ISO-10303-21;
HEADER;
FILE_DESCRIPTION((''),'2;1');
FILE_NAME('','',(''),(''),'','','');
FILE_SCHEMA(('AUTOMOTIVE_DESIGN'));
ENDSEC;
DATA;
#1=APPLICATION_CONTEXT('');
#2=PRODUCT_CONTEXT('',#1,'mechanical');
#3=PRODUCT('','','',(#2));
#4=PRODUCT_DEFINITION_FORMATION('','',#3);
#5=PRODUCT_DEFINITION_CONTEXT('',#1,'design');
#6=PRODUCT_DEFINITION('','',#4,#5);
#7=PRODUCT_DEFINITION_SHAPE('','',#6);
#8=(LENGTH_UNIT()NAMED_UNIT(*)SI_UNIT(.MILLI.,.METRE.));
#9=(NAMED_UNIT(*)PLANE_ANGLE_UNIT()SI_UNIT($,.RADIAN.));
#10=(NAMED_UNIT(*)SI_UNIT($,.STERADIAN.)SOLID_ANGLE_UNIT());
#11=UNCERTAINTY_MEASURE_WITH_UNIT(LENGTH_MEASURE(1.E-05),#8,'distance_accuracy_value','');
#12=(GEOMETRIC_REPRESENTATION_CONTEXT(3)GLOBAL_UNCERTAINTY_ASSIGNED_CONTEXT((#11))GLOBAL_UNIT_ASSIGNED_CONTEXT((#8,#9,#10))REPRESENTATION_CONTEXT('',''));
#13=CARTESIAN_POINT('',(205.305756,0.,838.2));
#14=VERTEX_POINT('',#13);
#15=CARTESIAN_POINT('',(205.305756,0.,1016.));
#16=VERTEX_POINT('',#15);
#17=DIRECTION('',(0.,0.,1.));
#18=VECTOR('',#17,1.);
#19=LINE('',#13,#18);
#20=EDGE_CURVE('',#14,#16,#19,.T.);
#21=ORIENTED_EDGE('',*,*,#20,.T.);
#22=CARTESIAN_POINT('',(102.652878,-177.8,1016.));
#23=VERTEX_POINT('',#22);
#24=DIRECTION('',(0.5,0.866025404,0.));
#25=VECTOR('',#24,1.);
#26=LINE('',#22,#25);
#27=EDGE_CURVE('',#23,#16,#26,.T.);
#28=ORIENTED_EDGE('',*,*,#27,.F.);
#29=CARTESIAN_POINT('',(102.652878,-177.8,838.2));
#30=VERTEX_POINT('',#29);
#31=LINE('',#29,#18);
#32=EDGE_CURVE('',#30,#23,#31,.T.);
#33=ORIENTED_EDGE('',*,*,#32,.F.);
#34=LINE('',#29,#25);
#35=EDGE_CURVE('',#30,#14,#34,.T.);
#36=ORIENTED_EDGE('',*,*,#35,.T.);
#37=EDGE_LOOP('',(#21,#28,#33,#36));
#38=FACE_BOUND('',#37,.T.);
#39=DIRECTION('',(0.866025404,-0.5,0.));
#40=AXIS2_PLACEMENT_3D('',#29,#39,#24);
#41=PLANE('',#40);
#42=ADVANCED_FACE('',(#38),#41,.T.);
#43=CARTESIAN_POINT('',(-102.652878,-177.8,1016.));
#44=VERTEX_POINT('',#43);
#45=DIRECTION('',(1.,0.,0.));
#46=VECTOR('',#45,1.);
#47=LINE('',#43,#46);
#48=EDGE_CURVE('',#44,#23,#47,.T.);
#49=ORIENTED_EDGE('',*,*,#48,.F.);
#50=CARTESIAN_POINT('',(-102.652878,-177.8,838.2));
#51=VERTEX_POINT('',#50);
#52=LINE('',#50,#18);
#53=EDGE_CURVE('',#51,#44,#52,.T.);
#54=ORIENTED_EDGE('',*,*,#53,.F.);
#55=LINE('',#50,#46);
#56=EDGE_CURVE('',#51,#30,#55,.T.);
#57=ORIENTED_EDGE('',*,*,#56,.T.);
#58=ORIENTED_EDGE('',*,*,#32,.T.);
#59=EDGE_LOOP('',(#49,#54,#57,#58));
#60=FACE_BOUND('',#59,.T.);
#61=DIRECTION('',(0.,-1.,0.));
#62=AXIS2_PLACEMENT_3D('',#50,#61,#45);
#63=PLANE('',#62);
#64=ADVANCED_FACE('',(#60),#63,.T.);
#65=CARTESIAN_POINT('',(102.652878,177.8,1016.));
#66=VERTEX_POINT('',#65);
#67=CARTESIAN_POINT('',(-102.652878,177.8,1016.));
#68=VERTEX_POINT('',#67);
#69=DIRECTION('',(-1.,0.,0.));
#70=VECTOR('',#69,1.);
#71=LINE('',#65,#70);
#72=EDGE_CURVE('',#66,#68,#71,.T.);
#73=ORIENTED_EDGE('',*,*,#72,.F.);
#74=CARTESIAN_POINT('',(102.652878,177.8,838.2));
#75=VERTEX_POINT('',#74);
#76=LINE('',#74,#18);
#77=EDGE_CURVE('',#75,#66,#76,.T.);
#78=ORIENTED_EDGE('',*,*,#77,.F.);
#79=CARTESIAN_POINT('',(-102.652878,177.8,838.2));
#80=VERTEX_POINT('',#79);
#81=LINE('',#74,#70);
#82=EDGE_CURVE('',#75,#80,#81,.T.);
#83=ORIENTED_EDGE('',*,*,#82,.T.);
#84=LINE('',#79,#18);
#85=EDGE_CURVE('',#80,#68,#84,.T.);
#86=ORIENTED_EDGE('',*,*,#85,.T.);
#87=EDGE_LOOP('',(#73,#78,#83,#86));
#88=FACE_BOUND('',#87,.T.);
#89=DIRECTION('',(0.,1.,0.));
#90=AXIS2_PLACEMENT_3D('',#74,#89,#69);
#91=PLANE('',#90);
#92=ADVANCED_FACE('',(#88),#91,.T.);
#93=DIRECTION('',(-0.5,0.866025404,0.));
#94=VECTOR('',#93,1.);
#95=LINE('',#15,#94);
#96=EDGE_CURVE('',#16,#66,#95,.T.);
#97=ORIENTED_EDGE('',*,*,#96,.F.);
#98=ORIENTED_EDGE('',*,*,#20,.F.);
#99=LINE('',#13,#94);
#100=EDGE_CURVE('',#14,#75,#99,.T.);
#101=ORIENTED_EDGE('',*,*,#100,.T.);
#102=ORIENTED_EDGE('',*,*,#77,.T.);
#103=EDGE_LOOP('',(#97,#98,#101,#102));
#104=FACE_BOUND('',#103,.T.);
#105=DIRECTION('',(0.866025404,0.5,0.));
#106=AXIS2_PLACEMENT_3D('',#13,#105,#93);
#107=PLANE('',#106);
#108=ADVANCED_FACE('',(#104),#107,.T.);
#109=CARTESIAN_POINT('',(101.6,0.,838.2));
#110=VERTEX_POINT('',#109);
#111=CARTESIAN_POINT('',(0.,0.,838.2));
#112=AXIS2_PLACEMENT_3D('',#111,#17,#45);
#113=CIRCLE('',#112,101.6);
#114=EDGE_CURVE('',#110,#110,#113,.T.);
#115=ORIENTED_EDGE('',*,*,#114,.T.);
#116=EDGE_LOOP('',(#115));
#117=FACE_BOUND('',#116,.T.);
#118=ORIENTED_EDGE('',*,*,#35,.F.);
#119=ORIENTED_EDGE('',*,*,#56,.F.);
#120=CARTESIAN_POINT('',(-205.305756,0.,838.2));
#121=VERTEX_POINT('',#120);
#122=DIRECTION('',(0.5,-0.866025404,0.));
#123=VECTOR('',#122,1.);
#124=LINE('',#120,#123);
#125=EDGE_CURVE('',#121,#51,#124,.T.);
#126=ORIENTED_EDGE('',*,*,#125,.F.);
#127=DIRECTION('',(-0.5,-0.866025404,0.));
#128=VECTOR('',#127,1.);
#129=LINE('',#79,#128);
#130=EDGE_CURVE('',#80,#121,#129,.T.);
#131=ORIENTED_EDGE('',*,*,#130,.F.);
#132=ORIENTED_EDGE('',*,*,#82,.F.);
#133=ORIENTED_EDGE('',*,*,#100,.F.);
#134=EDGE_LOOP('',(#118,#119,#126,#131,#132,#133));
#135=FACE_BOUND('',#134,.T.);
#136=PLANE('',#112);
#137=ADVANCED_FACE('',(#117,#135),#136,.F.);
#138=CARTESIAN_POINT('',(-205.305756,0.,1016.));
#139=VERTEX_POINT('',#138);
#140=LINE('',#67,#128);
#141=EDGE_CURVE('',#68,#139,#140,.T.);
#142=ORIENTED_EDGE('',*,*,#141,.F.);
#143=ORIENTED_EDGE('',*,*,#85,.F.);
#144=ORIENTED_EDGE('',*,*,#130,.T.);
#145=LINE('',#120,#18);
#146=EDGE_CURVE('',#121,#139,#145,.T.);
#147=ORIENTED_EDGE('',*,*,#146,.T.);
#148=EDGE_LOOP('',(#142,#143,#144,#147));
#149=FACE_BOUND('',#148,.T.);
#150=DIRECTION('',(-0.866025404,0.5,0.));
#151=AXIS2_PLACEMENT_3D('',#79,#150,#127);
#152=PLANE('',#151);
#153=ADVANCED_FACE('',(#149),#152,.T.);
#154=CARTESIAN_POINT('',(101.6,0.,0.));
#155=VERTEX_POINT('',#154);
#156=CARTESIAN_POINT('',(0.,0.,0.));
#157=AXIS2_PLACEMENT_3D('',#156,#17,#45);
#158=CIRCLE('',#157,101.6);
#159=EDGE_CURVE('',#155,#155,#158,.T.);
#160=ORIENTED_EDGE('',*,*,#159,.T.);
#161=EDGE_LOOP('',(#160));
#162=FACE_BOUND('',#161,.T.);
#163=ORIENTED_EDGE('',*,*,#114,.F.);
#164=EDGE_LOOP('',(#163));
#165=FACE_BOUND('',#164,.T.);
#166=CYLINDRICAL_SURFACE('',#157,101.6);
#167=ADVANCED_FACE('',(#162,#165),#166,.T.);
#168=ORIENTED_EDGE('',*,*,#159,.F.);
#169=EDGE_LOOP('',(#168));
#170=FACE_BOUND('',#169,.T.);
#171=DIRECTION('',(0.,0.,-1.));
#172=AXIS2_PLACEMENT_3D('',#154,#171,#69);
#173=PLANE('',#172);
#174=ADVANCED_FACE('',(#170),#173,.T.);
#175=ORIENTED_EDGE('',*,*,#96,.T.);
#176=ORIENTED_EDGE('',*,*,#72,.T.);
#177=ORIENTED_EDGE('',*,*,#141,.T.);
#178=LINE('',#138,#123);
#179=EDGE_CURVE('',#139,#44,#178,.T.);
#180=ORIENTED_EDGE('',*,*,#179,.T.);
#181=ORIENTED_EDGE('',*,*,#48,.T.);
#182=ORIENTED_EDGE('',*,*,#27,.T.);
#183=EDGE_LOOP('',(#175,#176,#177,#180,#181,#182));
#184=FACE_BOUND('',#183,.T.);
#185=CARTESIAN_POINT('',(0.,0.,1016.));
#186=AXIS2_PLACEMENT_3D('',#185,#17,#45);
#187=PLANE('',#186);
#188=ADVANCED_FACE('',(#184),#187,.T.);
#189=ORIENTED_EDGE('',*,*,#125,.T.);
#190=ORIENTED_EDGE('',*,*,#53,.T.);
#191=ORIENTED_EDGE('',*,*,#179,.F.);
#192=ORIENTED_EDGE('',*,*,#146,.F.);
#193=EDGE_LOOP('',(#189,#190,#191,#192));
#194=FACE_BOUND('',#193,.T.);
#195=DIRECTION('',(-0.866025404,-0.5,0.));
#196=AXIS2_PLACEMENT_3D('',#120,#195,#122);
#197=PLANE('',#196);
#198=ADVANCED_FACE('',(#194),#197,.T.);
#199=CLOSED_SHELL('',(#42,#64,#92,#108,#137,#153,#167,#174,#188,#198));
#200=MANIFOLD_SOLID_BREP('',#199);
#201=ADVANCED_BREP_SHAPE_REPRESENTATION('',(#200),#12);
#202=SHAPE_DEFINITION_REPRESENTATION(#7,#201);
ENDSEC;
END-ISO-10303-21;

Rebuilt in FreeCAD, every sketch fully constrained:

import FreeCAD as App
import Part
import Sketcher
from FreeCAD import Vector
Q = App.Units.Quantity


def add_polygon(sketch, points):
    """Adds a closed chain of lines whose ends are joined by coincident constraints."""
    first, n = sketch.GeometryCount, len(points)
    for a, b in zip(points, points[1:] + points[:1]):
        sketch.addGeometry(Part.LineSegment(App.Vector(*a, 0), App.Vector(*b, 0)), False)
    for i in range(n):
        sketch.addConstraint(Sketcher.Constraint("Coincident", first + i, 2, first + (i + 1) % n, 1))

doc = App.newDocument("Part")
params = doc.addObject("Spreadsheet::Sheet", "Params")
for row, (alias, value) in enumerate([
    ("pad1_length", "7 in"),
    ("sketch2_width", "4 in"),
    ("sketch2_height", "33 in"),
    ("revolution_angle", "360 deg"),
], start=1):
    params.set(f"A{row}", alias)
    params.set(f"B{row}", "=" + value)
    params.setAlias(f"B{row}", alias)

body = doc.addObject("PartDesign::Body", "Body")

sketch1 = body.newObject("Sketcher::SketchObject", "Sketch")
sketch1.AttachmentSupport = (doc.getObject("XY_Plane"), [""])
sketch1.MapMode = "FlatFace"
sketch1.AttachmentOffset = App.Placement(Vector(0, 0, 40 * 25.4), App.Rotation())
add_polygon(sketch1, [(-103, -178), (103, -178), (205, 0), (103, 178), (-103, 178), (-205, 0)])
sketch1.addConstraint([
    Sketcher.Constraint("Horizontal", 0),
    Sketcher.Constraint("Horizontal", 3),
    Sketcher.Constraint("Symmetric", 0, 2, 3, 2, -1, 1),
    Sketcher.Constraint("Symmetric", 1, 2, 4, 2, -1, 1),
    Sketcher.Constraint("PointOnObject", 1, 2, -1),
    Sketcher.Constraint("Parallel", 2, 5),
    Sketcher.Constraint("Vertical", 0, 2, 2, 2),
    Sketcher.Constraint("DistanceY", 0, 2, -1, 1, Q("7 in")),
    Sketcher.Constraint("Angle", 1, Q("60 deg")),
    Sketcher.Constraint("DistanceX", 0, 1, 0, 2, Q("205.305756 mm")),
])
pad1 = body.newObject("PartDesign::Pad", "Pad")
pad1.Profile = sketch1
pad1.setExpression("Length", "Params.pad1_length")
pad1.Reversed = True

sketch2 = body.newObject("Sketcher::SketchObject", "Sketch001")
sketch2.AttachmentSupport = (doc.getObject("XZ_Plane"), [""])
sketch2.MapMode = "FlatFace"
add_polygon(sketch2, [(0, 0), (0, 838), (102, 838), (102, 0)])
sketch2.addConstraint([
    Sketcher.Constraint("Vertical", 0),
    Sketcher.Constraint("Horizontal", 1),
    Sketcher.Constraint("Vertical", 2),
    Sketcher.Constraint("Horizontal", 3),
    Sketcher.Constraint("Coincident", 3, 2, -1, 1),
    Sketcher.Constraint("DistanceX", 1, 1, 1, 2, Q("4 in")),
    Sketcher.Constraint("DistanceY", 0, 1, 0, 2, Q("33 in")),
])
sketch2.setExpression("Constraints[9]", "Params.sketch2_width")
sketch2.setExpression("Constraints[10]", "Params.sketch2_height")
revolution = body.newObject("PartDesign::Revolution", "Revolution")
revolution.Profile = sketch2
revolution.ReferenceAxis = (sketch2, ["V_Axis"])
revolution.setExpression("Angle", "Params.revolution_angle")

doc.recompute()
